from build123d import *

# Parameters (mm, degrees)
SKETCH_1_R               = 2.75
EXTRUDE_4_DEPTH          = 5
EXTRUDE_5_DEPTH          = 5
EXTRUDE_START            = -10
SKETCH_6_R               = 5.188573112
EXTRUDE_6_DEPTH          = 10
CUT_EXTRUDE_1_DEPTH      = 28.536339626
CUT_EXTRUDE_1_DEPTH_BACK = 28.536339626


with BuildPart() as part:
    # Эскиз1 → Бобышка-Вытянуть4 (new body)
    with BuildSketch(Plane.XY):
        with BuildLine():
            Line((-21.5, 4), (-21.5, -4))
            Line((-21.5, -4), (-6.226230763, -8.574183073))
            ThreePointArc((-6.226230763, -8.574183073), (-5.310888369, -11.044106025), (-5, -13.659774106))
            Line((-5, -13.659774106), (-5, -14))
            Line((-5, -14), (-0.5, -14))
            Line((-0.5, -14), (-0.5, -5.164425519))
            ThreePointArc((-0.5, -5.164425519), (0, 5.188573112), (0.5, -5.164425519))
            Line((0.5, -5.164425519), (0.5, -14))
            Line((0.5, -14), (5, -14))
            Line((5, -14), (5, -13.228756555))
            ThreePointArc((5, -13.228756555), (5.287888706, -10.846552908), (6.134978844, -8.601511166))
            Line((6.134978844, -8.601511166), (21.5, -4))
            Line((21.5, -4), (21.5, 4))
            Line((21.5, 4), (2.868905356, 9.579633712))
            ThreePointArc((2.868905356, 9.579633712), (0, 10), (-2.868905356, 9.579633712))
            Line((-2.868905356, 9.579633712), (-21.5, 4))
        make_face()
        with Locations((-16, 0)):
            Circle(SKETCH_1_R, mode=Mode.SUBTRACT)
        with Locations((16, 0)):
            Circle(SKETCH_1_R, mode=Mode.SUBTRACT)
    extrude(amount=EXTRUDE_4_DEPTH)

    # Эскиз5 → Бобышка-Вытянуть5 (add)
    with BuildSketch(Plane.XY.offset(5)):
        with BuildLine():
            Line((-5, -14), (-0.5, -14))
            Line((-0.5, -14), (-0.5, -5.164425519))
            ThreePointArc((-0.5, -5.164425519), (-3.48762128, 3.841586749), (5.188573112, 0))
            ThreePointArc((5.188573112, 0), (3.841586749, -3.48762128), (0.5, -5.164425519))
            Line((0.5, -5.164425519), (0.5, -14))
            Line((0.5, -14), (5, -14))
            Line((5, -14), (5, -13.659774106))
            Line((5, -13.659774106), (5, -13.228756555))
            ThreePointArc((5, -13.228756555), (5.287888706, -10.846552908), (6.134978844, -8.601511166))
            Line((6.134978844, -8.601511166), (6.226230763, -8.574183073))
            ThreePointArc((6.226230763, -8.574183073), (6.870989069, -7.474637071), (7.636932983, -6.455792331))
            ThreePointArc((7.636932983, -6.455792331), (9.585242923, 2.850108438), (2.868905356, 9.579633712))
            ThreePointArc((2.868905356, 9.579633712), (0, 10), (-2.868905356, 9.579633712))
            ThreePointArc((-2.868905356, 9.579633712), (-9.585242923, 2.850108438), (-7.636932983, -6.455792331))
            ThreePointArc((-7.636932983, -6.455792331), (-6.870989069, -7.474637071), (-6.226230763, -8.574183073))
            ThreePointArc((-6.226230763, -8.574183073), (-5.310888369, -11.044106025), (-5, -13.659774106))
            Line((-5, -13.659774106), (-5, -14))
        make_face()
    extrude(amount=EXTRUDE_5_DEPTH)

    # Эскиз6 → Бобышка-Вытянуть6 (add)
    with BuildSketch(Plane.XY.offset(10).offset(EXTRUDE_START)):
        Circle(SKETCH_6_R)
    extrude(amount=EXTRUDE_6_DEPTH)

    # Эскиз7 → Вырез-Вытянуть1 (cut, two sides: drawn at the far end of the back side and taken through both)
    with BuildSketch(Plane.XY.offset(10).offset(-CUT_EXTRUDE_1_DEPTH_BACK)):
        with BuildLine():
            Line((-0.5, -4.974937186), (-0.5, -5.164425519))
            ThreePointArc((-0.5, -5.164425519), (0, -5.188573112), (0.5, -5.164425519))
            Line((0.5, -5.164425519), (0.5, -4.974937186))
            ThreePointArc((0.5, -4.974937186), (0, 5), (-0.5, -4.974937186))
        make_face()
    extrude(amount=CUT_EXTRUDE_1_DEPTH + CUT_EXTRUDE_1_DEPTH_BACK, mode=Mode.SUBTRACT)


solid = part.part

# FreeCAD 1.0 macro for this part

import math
import FreeCAD as App
import Part
import Sketcher

V = App.Vector
Q = App.Units.Quantity

doc = App.newDocument("Part")
body = doc.addObject("PartDesign::Body", "Body")

sketch1 = body.newObject("Sketcher::SketchObject", "Sketch")
sketch1.AttachmentSupport = (doc.getObject("XY_Plane"), [""])
sketch1.MapMode = "FlatFace"
sketch1.addGeometry(Part.LineSegment(V(-21.5, 4, 0), V(-21.5, -4, 0)), False)
sketch1.addGeometry(Part.LineSegment(V(-21.5, -4, 0), V(-6.23, -8.57, 0)), False)
sketch1.addGeometry(Part.ArcOfCircle(Part.Circle(V(-16.16, -13.66, 0), V(0, 0, 1), 11.16), math.radians(0), math.radians(27)), False)
sketch1.addGeometry(Part.LineSegment(V(-5, -13.66, 0), V(-5, -14, 0)), False)
sketch1.addGeometry(Part.LineSegment(V(-5, -14, 0), V(-0.5, -14, 0)), False)
sketch1.addGeometry(Part.LineSegment(V(-0.5, -14, 0), V(-0.5, -5.16, 0)), False)
sketch1.addGeometry(Part.ArcOfCircle(Part.Circle(V(0, 0, 0), V(0, 0, 1), 5.19), math.radians(-84), math.radians(264)), False)
sketch1.addGeometry(Part.LineSegment(V(0.5, -5.16, 0), V(0.5, -14, 0)), False)
sketch1.addGeometry(Part.LineSegment(V(0.5, -14, 0), V(5, -14, 0)), False)
sketch1.addGeometry(Part.LineSegment(V(5, -14, 0), V(5, -13.23, 0)), False)
sketch1.addGeometry(Part.ArcOfCircle(Part.Circle(V(15, -13.23, 0), V(0, 0, 1), 10), math.radians(152), math.radians(180)), False)
sketch1.addGeometry(Part.LineSegment(V(6.13, -8.6, 0), V(21.5, -4, 0)), False)
sketch1.addGeometry(Part.LineSegment(V(21.5, -4, 0), V(21.5, 4, 0)), False)
sketch1.addGeometry(Part.LineSegment(V(21.5, 4, 0), V(2.87, 9.58, 0)), False)
sketch1.addGeometry(Part.ArcOfCircle(Part.Circle(V(0, 0, 0), V(0, 0, 1), 10), math.radians(73), math.radians(107)), False)
sketch1.addGeometry(Part.LineSegment(V(-2.87, 9.58, 0), V(-21.5, 4, 0)), False)
sketch1.addGeometry(Part.Circle(V(-16, 0, 0), V(0, 0, 1), 2.75), False)
sketch1.addGeometry(Part.Circle(V(16, 0, 0), V(0, 0, 1), 2.75), False)
sketch1.addConstraint(Sketcher.Constraint("Coincident", 0, 2, 1, 1))
sketch1.addConstraint(Sketcher.Constraint("Coincident", 1, 2, 2, 2))
sketch1.addConstraint(Sketcher.Constraint("Tangent", 2, 1, 3, 1))
sketch1.addConstraint(Sketcher.Constraint("Coincident", 3, 2, 4, 1))
sketch1.addConstraint(Sketcher.Constraint("Coincident", 4, 2, 5, 1))
sketch1.addConstraint(Sketcher.Constraint("Coincident", 5, 2, 6, 2))
sketch1.addConstraint(Sketcher.Constraint("Coincident", 6, 1, 7, 1))
sketch1.addConstraint(Sketcher.Constraint("Coincident", 7, 2, 8, 1))
sketch1.addConstraint(Sketcher.Constraint("Coincident", 8, 2, 9, 1))
sketch1.addConstraint(Sketcher.Constraint("Tangent", 9, 2, 10, 2))
sketch1.addConstraint(Sketcher.Constraint("Coincident", 10, 1, 11, 1))
sketch1.addConstraint(Sketcher.Constraint("Coincident", 11, 2, 12, 1))
sketch1.addConstraint(Sketcher.Constraint("Coincident", 12, 2, 13, 1))
sketch1.addConstraint(Sketcher.Constraint("Tangent", 13, 2, 14, 1))
sketch1.addConstraint(Sketcher.Constraint("Tangent", 14, 2, 15, 1))
sketch1.addConstraint(Sketcher.Constraint("Coincident", 15, 2, 0, 1))
sketch1.addConstraint(Sketcher.Constraint("Vertical", 0))
sketch1.addConstraint(Sketcher.Constraint("Vertical", 3))
sketch1.addConstraint(Sketcher.Constraint("Horizontal", 4))
sketch1.addConstraint(Sketcher.Constraint("Vertical", 5))
sketch1.addConstraint(Sketcher.Constraint("Vertical", 7))
sketch1.addConstraint(Sketcher.Constraint("Horizontal", 8))
sketch1.addConstraint(Sketcher.Constraint("Vertical", 9))
sketch1.addConstraint(Sketcher.Constraint("Vertical", 12))
sketch1.addConstraint(Sketcher.Constraint("Coincident", 6, 3, -1, 1))
sketch1.addConstraint(Sketcher.Constraint("Coincident", 14, 3, -1, 1))
sketch1.addConstraint(Sketcher.Constraint("Equal", 10, 14))
sketch1.addConstraint(Sketcher.Constraint("Equal", 16, 17))
sketch1.addConstraint(Sketcher.Constraint("Symmetric", 16, 3, 17, 3, -1, 1))
sketch1.addConstraint(Sketcher.Constraint("Symmetric", 0, 2, 12, 2, -1, 1))
sketch1.addConstraint(Sketcher.Constraint("Symmetric", 4, 2, 7, 2, -2))
sketch1.addConstraint(Sketcher.Constraint("PointOnObject", 16, 3, -1))
sketch1.addConstraint(Sketcher.Constraint("Parallel", 1, 13))
sketch1.addConstraint(Sketcher.Constraint("Parallel", 11, 15))
sketch1.addConstraint(Sketcher.Constraint("Horizontal", 0, 2, 11, 2))
sketch1.addConstraint(Sketcher.Constraint("Horizontal", 13, 2, 14, 2))
sketch1.addConstraint(Sketcher.Constraint("Equal", 4, 8))
sketch1.addConstraint(Sketcher.Constraint("Radius", 10, Q("10 mm")))
sketch1.addConstraint(Sketcher.Constraint("Diameter", 16, Q("5.5 mm")))
sketch1.addConstraint(Sketcher.Constraint("DistanceY", 0, 2, 0, 1, Q("8 mm")))
sketch1.addConstraint(Sketcher.Constraint("DistanceX", 4, 1, 4, 2, Q("4.5 mm")))
sketch1.addConstraint(Sketcher.Constraint("DistanceX", -1, 1, 10, 3, Q("15 mm")))
sketch1.addConstraint(Sketcher.Constraint("DistanceX", 16, 3, -1, 1, Q("16 mm")))
sketch1.addConstraint(Sketcher.Constraint("DistanceY", 3, 2, -1, 1, Q("14 mm")))
sketch1.addConstraint(Sketcher.Constraint("DistanceX", 0, 2, -1, 1, Q("21.5 mm")))
sketch1.addConstraint(Sketcher.Constraint("Distance", 1, Q("15.944001 mm")))
sketch1.addConstraint(Sketcher.Constraint("Radius", 2, Q("11.158943 mm")))
sketch1.addConstraint(Sketcher.Constraint("Radius", 6, Q("5.188573 mm")))
sketch1.addConstraint(Sketcher.Constraint("DistanceY", 9, 1, 9, 2, Q("0.771243 mm")))
pad1 = body.newObject("PartDesign::Pad", "Pad")
pad1.Profile = sketch1
pad1.Length = 5

sketch2 = body.newObject("Sketcher::SketchObject", "Sketch001")
sketch2.AttachmentSupport = (doc.getObject("XY_Plane"), [""])
sketch2.MapMode = "FlatFace"
sketch2.AttachmentOffset = App.Placement(V(0, 0, 5), App.Rotation())
sketch2.addGeometry(Part.LineSegment(V(-5, -14, 0), V(-0.5, -14, 0)), False)
sketch2.addGeometry(Part.LineSegment(V(-0.5, -14, 0), V(-0.5, -5.16, 0)), False)
sketch2.addGeometry(Part.ArcOfCircle(Part.Circle(V(0, 0, 0), V(0, 0, 1), 5.19), math.radians(0), math.radians(264)), False)
sketch2.addGeometry(Part.ArcOfCircle(Part.Circle(V(0, 0, 0), V(0, 0, 1), 5.19), math.radians(-84), math.radians(0)), False)
sketch2.addGeometry(Part.LineSegment(V(0.5, -5.16, 0), V(0.5, -14, 0)), False)
sketch2.addGeometry(Part.LineSegment(V(0.5, -14, 0), V(5, -14, 0)), False)
sketch2.addGeometry(Part.LineSegment(V(5, -14, 0), V(5, -13.23, 0)), False)
sketch2.addGeometry(Part.ArcOfCircle(Part.Circle(V(15, -13.23, 0), V(0, 0, 1), 10), math.radians(152), math.radians(180)), False)
sketch2.addGeometry(Part.LineSegment(V(6.13, -8.6, 0), V(6.23, -8.57, 0)), False)
sketch2.addGeometry(Part.ArcOfCircle(Part.Circle(V(16.16, -13.66, 0), V(0, 0, 1), 11.16), math.radians(139.79), math.radians(152.89)), False)
sketch2.addGeometry(Part.ArcOfCircle(Part.Circle(V(0, 0, 0), V(0, 0, 1), 10), math.radians(-40), math.radians(73)), False)
sketch2.addGeometry(Part.ArcOfCircle(Part.Circle(V(0, 0, 0), V(0, 0, 1), 10), math.radians(73), math.radians(107)), False)
sketch2.addGeometry(Part.ArcOfCircle(Part.Circle(V(0, 0, 0), V(0, 0, 1), 10), math.radians(107), math.radians(220)), False)
sketch2.addGeometry(Part.ArcOfCircle(Part.Circle(V(-16.16, -13.66, 0), V(0, 0, 1), 11.16), math.radians(27.11), math.radians(40.21)), False)
sketch2.addGeometry(Part.ArcOfCircle(Part.Circle(V(-16.16, -13.66, 0), V(0, 0, 1), 11.16), math.radians(0), math.radians(27)), False)
sketch2.addGeometry(Part.LineSegment(V(-5, -13.66, 0), V(-5, -14, 0)), False)
sketch2.addConstraint(Sketcher.Constraint("Coincident", 0, 2, 1, 1))
sketch2.addConstraint(Sketcher.Constraint("Coincident", 1, 2, 2, 2))
sketch2.addConstraint(Sketcher.Constraint("Tangent", 2, 1, 3, 2))
sketch2.addConstraint(Sketcher.Constraint("Coincident", 3, 1, 4, 1))
sketch2.addConstraint(Sketcher.Constraint("Coincident", 4, 2, 5, 1))
sketch2.addConstraint(Sketcher.Constraint("Coincident", 5, 2, 6, 1))
sketch2.addConstraint(Sketcher.Constraint("Tangent", 6, 2, 7, 2))
sketch2.addConstraint(Sketcher.Constraint("Coincident", 7, 1, 8, 1))
sketch2.addConstraint(Sketcher.Constraint("Coincident", 8, 2, 9, 2))
sketch2.addConstraint(Sketcher.Constraint("Tangent", 9, 1, 10, 1))
sketch2.addConstraint(Sketcher.Constraint("Tangent", 10, 2, 11, 1))
sketch2.addConstraint(Sketcher.Constraint("Tangent", 11, 2, 12, 1))
sketch2.addConstraint(Sketcher.Constraint("Tangent", 12, 2, 13, 2))
sketch2.addConstraint(Sketcher.Constraint("Tangent", 13, 1, 14, 2))
sketch2.addConstraint(Sketcher.Constraint("Tangent", 14, 1, 15, 1))
sketch2.addConstraint(Sketcher.Constraint("Coincident", 15, 2, 0, 1))
sketch2.addConstraint(Sketcher.Constraint("Horizontal", 0))
sketch2.addConstraint(Sketcher.Constraint("Vertical", 1))
sketch2.addConstraint(Sketcher.Constraint("Vertical", 4))
sketch2.addConstraint(Sketcher.Constraint("Horizontal", 5))
sketch2.addConstraint(Sketcher.Constraint("Vertical", 6))
sketch2.addConstraint(Sketcher.Constraint("Vertical", 15))
sketch2.addConstraint(Sketcher.Constraint("Coincident", 2, 3, -1, 1))
sketch2.addConstraint(Sketcher.Constraint("Coincident", 10, 3, -1, 1))
sketch2.addConstraint(Sketcher.Constraint("Coincident", 12, 3, -1, 1))
sketch2.addConstraint(Sketcher.Constraint("Equal", 2, 3))
sketch2.addConstraint(Sketcher.Constraint("Equal", 7, 10))
sketch2.addConstraint(Sketcher.Constraint("Equal", 9, 13))
sketch2.addConstraint(Sketcher.Constraint("Equal", 13, 14))
sketch2.addConstraint(Sketcher.Constraint("Symmetric", 0, 2, 4, 2, -2))
sketch2.addConstraint(Sketcher.Constraint("Symmetric", 8, 2, 13, 1, -2))
sketch2.addConstraint(Sketcher.Constraint("PointOnObject", 2, 1, -1))
sketch2.addConstraint(Sketcher.Constraint("Horizontal", 10, 2, 11, 2))
sketch2.addConstraint(Sketcher.Constraint("Equal", 0, 5))
sketch2.addConstraint(Sketcher.Constraint("Radius", 7, Q("10 mm")))
sketch2.addConstraint(Sketcher.Constraint("DistanceX", 0, 1, 0, 2, Q("4.5 mm")))
sketch2.addConstraint(Sketcher.Constraint("DistanceX", -1, 1, 7, 3, Q("15 mm")))
sketch2.addConstraint(Sketcher.Constraint("DistanceY", 0, 2, -1, 1, Q("14 mm")))
sketch2.addConstraint(Sketcher.Constraint("Radius", 2, Q("5.188573 mm")))
sketch2.addConstraint(Sketcher.Constraint("Radius", 9, Q("11.158943 mm")))
sketch2.addConstraint(Sketcher.Constraint("DistanceY", 6, 1, 6, 2, Q("0.771243 mm")))
sketch2.addConstraint(Sketcher.Constraint("DistanceX", -1, 1, 7, 1, Q("6.134979 mm")))
sketch2.addConstraint(Sketcher.Constraint("DistanceX", -1, 1, 8, 2, Q("6.226231 mm")))
sketch2.addConstraint(Sketcher.Constraint("DistanceX", 11, 2, 10, 2, Q("5.737811 mm")))
pad2 = body.newObject("PartDesign::Pad", "Pad001")
pad2.Profile = sketch2
pad2.Length = 5

sketch3 = body.newObject("Sketcher::SketchObject", "Sketch002")
sketch3.AttachmentSupport = (doc.getObject("XY_Plane"), [""])
sketch3.MapMode = "FlatFace"
sketch3.addGeometry(Part.Circle(V(0, 0, 0), V(0, 0, 1), 5), False)
sketch3.addConstraint(Sketcher.Constraint("Coincident", 0, 3, -1, 1))
sketch3.addConstraint(Sketcher.Constraint("Diameter", 0, Q("10.377146 mm")))
pad3 = body.newObject("PartDesign::Pad", "Pad002")
pad3.Profile = sketch3
pad3.Length = 10

sketch4 = body.newObject("Sketcher::SketchObject", "Sketch003")
sketch4.AttachmentSupport = (doc.getObject("XY_Plane"), [""])
sketch4.MapMode = "FlatFace"
sketch4.AttachmentOffset = App.Placement(V(0, 0, 10), App.Rotation())
sketch4.addGeometry(Part.LineSegment(V(-0.5, -4.97, 0), V(-0.5, -5.16, 0)), False)
sketch4.addGeometry(Part.ArcOfCircle(Part.Circle(V(0, 0, 0), V(0, 0, 1), 5.19), math.radians(-95.53), math.radians(-84.47)), False)
sketch4.addGeometry(Part.LineSegment(V(0.5, -5.16, 0), V(0.5, -4.97, 0)), False)
sketch4.addGeometry(Part.ArcOfCircle(Part.Circle(V(0, 0, 0), V(0, 0, 1), 5), math.radians(-84), math.radians(264)), False)
sketch4.addConstraint(Sketcher.Constraint("Coincident", 0, 2, 1, 1))
sketch4.addConstraint(Sketcher.Constraint("Coincident", 1, 2, 2, 1))
sketch4.addConstraint(Sketcher.Constraint("Coincident", 2, 2, 3, 1))
sketch4.addConstraint(Sketcher.Constraint("Coincident", 3, 2, 0, 1))
sketch4.addConstraint(Sketcher.Constraint("Vertical", 0))
sketch4.addConstraint(Sketcher.Constraint("Vertical", 2))
sketch4.addConstraint(Sketcher.Constraint("Coincident", 1, 3, -1, 1))
sketch4.addConstraint(Sketcher.Constraint("Coincident", 3, 3, -1, 1))
sketch4.addConstraint(Sketcher.Constraint("Horizontal", 0, 2, 1, 2))
sketch4.addConstraint(Sketcher.Constraint("Radius", 3, Q("5 mm")))
sketch4.addConstraint(Sketcher.Constraint("DistanceX", 0, 2, 1, 2, Q("1 mm")))
sketch4.addConstraint(Sketcher.Constraint("Radius", 1, Q("5.188573 mm")))
pocket1 = body.newObject("PartDesign::Pocket", "Pocket")
pocket1.Profile = sketch4
pocket1.Type = "ThroughAll"
pocket1.Midplane = True

doc.recompute()
